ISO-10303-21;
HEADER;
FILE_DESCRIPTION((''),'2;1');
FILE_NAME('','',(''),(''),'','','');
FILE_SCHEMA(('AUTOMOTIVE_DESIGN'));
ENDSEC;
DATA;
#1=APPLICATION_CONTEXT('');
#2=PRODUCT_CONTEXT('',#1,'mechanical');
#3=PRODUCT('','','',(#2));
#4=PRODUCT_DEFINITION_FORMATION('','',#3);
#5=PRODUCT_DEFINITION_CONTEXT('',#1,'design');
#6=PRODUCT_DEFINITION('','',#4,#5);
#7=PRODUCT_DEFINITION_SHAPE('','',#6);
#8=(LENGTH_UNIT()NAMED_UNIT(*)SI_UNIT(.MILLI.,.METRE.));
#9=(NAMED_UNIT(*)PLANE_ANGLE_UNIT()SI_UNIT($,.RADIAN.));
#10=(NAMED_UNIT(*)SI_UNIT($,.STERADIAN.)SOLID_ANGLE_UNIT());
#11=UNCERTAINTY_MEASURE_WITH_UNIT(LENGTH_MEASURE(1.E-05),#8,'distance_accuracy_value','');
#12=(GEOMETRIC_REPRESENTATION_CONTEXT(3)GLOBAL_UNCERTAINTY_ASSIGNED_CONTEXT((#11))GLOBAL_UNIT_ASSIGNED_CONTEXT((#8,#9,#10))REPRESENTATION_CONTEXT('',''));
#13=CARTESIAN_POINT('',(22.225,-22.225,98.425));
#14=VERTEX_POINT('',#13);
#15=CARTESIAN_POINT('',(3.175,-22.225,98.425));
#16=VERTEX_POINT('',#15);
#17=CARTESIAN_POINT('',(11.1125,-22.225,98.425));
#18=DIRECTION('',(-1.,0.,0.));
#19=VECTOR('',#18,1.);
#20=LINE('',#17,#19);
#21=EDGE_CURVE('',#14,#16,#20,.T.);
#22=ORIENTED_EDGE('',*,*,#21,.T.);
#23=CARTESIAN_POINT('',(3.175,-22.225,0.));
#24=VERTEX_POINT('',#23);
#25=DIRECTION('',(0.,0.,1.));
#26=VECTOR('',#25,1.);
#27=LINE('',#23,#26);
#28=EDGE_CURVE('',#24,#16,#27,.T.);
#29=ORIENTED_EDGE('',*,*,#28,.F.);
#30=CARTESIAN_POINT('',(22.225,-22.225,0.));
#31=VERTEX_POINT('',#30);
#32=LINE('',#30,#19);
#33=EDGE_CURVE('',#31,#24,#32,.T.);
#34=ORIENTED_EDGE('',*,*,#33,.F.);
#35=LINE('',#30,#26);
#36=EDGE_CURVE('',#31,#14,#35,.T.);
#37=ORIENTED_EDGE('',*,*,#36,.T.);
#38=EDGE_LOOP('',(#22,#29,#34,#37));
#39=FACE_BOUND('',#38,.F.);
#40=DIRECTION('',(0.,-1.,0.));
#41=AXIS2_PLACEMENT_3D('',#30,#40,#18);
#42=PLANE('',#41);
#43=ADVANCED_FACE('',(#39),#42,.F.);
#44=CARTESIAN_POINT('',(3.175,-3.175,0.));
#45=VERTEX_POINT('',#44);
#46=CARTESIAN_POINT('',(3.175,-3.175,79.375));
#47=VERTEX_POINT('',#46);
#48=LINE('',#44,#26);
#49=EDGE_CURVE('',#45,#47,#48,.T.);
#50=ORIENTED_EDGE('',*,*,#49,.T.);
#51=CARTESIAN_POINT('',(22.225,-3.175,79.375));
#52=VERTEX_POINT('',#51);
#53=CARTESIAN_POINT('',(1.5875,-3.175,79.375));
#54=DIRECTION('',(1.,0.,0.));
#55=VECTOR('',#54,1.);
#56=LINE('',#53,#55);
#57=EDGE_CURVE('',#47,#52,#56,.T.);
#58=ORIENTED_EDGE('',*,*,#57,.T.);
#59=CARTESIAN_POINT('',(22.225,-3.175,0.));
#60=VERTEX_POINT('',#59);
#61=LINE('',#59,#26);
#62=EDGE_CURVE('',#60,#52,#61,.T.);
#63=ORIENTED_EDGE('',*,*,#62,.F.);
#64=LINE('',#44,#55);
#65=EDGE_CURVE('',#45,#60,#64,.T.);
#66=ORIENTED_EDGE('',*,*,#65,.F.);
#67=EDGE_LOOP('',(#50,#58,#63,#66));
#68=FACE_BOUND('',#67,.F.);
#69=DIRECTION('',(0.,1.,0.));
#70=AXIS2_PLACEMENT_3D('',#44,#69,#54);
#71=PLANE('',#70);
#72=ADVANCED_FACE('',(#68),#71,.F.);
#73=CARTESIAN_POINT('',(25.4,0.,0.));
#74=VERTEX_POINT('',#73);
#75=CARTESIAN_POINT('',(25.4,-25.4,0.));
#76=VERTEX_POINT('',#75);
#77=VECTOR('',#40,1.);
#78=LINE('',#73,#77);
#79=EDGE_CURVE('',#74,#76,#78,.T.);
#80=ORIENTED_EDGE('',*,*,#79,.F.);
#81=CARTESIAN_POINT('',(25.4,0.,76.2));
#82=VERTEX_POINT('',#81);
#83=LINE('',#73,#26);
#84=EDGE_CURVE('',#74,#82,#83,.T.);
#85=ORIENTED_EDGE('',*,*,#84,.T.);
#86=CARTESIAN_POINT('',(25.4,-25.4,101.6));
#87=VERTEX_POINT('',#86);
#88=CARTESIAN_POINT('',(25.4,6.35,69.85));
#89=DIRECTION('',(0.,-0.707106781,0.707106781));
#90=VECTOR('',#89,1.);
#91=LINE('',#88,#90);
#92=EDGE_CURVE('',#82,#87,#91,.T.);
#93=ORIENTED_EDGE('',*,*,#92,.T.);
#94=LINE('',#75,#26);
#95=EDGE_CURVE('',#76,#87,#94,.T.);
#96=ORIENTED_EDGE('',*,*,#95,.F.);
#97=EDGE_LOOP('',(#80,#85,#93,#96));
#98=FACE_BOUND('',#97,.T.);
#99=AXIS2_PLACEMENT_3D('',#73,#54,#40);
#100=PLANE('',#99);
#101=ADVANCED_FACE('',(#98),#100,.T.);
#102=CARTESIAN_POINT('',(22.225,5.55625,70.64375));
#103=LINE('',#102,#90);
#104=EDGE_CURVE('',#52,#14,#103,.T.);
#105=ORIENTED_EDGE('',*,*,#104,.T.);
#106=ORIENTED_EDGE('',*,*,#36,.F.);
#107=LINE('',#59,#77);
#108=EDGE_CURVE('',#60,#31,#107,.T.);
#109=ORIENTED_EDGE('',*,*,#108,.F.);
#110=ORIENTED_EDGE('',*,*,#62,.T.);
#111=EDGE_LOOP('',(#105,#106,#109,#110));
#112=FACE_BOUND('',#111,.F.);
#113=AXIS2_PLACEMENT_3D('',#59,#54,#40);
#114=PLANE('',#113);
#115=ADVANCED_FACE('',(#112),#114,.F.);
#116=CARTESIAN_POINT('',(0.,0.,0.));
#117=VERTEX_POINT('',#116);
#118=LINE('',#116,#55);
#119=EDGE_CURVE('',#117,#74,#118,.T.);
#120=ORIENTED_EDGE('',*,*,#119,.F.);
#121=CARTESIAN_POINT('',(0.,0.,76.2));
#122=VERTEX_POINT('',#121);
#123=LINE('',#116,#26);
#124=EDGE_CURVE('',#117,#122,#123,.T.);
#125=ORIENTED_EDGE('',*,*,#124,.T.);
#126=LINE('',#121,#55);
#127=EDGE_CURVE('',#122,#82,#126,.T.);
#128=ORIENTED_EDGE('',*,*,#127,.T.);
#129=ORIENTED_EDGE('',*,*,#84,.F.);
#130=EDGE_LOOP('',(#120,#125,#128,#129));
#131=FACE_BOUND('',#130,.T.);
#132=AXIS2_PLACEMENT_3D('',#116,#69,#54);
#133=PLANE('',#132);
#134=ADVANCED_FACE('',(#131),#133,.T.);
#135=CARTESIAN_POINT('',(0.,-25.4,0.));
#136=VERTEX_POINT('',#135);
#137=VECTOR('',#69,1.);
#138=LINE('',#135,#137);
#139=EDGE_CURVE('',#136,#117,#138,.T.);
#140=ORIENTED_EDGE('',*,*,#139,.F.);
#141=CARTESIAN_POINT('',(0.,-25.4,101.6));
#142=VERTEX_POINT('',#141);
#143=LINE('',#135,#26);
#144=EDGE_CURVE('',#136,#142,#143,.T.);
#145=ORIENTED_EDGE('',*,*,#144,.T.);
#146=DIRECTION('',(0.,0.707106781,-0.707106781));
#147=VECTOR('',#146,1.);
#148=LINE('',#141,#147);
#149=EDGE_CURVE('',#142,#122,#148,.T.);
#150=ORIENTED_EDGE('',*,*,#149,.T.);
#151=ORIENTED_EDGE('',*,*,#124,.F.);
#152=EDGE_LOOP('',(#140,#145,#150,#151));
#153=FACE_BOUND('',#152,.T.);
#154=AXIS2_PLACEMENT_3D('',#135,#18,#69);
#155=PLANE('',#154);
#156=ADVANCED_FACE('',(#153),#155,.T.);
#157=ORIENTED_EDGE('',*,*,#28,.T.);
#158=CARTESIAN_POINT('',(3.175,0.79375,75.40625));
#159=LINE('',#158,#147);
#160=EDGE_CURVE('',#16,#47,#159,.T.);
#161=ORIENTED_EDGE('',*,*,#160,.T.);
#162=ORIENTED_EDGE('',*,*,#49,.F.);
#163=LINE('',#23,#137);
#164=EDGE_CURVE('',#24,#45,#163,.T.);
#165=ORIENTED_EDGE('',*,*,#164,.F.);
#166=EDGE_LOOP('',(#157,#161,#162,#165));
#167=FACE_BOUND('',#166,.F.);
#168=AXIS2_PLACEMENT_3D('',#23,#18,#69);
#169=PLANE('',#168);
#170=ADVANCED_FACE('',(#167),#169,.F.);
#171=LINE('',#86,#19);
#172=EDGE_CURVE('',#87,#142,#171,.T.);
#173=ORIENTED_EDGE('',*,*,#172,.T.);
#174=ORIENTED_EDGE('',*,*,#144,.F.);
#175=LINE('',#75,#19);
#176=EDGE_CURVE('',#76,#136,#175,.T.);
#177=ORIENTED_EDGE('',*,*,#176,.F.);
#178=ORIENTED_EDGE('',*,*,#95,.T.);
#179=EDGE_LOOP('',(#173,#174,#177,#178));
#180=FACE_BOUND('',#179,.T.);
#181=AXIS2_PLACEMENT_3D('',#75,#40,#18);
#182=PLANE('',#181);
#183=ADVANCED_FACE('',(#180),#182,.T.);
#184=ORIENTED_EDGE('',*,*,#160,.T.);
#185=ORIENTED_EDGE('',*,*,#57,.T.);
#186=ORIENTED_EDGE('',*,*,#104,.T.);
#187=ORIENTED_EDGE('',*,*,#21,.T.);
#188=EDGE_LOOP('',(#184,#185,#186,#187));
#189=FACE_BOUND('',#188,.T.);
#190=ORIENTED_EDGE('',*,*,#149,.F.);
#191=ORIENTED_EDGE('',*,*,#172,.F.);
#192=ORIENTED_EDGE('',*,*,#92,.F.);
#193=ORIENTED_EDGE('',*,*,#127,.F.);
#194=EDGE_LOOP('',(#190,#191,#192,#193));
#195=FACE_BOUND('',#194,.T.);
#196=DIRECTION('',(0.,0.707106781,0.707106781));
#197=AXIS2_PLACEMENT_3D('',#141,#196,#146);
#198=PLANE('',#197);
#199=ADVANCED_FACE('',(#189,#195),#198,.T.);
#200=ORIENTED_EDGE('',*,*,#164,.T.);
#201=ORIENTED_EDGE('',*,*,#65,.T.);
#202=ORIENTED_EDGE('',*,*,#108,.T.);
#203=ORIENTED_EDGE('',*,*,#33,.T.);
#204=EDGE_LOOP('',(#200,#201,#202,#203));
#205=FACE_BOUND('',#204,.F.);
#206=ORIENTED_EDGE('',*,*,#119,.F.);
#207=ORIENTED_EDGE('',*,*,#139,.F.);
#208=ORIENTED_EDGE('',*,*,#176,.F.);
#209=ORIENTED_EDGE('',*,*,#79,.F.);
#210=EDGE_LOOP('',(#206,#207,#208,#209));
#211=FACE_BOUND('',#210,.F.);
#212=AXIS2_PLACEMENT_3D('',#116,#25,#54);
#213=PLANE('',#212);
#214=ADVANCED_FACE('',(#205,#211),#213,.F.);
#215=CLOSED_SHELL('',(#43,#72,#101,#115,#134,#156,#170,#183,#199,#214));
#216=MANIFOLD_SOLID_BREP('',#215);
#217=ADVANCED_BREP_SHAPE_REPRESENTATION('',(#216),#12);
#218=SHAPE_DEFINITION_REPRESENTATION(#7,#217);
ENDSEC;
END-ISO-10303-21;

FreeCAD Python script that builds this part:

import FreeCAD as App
import Part
import Sketcher
Q = App.Units.Quantity


def add_polygon(sketch, points):
    """Adds a closed chain of lines whose ends are joined by coincident constraints."""
    first, n = sketch.GeometryCount, len(points)
    for a, b in zip(points, points[1:] + points[:1]):
        sketch.addGeometry(Part.LineSegment(App.Vector(*a, 0), App.Vector(*b, 0)), False)
    for i in range(n):
        sketch.addConstraint(Sketcher.Constraint("Coincident", first + i, 2, first + (i + 1) % n, 1))

doc = App.newDocument("Part")
body = doc.addObject("PartDesign::Body", "Body")

# Sketch on XY plane
sketch1 = body.newObject("Sketcher::SketchObject", "Sketch")
sketch1.AttachmentSupport = (doc.getObject("XY_Plane"), [""])
sketch1.MapMode = "FlatFace"
add_polygon(sketch1, [(25, 0), (0, 0), (0, -25), (25, -25)])  # lines 0-3
add_polygon(sketch1, [(3, -22), (3, -3), (22, -3), (22, -22)])  # lines 4-7
sketch1.addConstraint([
    Sketcher.Constraint("Horizontal", 0),
    Sketcher.Constraint("Vertical", 1),
    Sketcher.Constraint("Horizontal", 2),
    Sketcher.Constraint("Vertical", 3),
    Sketcher.Constraint("Vertical", 4),
    Sketcher.Constraint("Horizontal", 5),
    Sketcher.Constraint("Vertical", 6),
    Sketcher.Constraint("Horizontal", 7),
    Sketcher.Constraint("Coincident", 0, 2, -1, 1),
    Sketcher.Constraint("Equal", 2, 1),
    Sketcher.Constraint("Equal", 7, 4),
    Sketcher.Constraint("DistanceX", 0, 2, 0, 1, Q("1 in")),
    Sketcher.Constraint("DistanceX", 5, 1, 5, 2, Q("0.75 in")),
    Sketcher.Constraint("DistanceX", -1, 1, 4, 2, Q("0.125 in")),
    Sketcher.Constraint("DistanceY", 4, 2, -1, 1, Q("0.125 in")),
])
pad1 = body.newObject("PartDesign::Pad", "Pad")
pad1.Profile = sketch1
pad1.Length = Q("4 in")

# Sketch on YZ plane
sketch2 = body.newObject("Sketcher::SketchObject", "Sketch001")
sketch2.AttachmentSupport = (doc.getObject("YZ_Plane"), [""])
sketch2.MapMode = "FlatFace"
add_polygon(sketch2, [(-25, 102), (0, 102), (0, 76)])  # lines 0-2
sketch2.addConstraint([
    Sketcher.Constraint("Horizontal", 0),
    Sketcher.Constraint("Vertical", 1),
    Sketcher.Constraint("PointOnObject", 0, 2, -2),
    Sketcher.Constraint("Equal", 0, 1),
    Sketcher.Constraint("DistanceX", 0, 1, 0, 2, Q("1 in")),
    Sketcher.Constraint("DistanceY", -1, 1, 0, 2, Q("4 in")),
])
pocket1 = body.newObject("PartDesign::Pocket", "Pocket")
pocket1.Profile = sketch2
pocket1.Length = Q("3 in")
pocket1.Reversed = True

doc.recompute()
